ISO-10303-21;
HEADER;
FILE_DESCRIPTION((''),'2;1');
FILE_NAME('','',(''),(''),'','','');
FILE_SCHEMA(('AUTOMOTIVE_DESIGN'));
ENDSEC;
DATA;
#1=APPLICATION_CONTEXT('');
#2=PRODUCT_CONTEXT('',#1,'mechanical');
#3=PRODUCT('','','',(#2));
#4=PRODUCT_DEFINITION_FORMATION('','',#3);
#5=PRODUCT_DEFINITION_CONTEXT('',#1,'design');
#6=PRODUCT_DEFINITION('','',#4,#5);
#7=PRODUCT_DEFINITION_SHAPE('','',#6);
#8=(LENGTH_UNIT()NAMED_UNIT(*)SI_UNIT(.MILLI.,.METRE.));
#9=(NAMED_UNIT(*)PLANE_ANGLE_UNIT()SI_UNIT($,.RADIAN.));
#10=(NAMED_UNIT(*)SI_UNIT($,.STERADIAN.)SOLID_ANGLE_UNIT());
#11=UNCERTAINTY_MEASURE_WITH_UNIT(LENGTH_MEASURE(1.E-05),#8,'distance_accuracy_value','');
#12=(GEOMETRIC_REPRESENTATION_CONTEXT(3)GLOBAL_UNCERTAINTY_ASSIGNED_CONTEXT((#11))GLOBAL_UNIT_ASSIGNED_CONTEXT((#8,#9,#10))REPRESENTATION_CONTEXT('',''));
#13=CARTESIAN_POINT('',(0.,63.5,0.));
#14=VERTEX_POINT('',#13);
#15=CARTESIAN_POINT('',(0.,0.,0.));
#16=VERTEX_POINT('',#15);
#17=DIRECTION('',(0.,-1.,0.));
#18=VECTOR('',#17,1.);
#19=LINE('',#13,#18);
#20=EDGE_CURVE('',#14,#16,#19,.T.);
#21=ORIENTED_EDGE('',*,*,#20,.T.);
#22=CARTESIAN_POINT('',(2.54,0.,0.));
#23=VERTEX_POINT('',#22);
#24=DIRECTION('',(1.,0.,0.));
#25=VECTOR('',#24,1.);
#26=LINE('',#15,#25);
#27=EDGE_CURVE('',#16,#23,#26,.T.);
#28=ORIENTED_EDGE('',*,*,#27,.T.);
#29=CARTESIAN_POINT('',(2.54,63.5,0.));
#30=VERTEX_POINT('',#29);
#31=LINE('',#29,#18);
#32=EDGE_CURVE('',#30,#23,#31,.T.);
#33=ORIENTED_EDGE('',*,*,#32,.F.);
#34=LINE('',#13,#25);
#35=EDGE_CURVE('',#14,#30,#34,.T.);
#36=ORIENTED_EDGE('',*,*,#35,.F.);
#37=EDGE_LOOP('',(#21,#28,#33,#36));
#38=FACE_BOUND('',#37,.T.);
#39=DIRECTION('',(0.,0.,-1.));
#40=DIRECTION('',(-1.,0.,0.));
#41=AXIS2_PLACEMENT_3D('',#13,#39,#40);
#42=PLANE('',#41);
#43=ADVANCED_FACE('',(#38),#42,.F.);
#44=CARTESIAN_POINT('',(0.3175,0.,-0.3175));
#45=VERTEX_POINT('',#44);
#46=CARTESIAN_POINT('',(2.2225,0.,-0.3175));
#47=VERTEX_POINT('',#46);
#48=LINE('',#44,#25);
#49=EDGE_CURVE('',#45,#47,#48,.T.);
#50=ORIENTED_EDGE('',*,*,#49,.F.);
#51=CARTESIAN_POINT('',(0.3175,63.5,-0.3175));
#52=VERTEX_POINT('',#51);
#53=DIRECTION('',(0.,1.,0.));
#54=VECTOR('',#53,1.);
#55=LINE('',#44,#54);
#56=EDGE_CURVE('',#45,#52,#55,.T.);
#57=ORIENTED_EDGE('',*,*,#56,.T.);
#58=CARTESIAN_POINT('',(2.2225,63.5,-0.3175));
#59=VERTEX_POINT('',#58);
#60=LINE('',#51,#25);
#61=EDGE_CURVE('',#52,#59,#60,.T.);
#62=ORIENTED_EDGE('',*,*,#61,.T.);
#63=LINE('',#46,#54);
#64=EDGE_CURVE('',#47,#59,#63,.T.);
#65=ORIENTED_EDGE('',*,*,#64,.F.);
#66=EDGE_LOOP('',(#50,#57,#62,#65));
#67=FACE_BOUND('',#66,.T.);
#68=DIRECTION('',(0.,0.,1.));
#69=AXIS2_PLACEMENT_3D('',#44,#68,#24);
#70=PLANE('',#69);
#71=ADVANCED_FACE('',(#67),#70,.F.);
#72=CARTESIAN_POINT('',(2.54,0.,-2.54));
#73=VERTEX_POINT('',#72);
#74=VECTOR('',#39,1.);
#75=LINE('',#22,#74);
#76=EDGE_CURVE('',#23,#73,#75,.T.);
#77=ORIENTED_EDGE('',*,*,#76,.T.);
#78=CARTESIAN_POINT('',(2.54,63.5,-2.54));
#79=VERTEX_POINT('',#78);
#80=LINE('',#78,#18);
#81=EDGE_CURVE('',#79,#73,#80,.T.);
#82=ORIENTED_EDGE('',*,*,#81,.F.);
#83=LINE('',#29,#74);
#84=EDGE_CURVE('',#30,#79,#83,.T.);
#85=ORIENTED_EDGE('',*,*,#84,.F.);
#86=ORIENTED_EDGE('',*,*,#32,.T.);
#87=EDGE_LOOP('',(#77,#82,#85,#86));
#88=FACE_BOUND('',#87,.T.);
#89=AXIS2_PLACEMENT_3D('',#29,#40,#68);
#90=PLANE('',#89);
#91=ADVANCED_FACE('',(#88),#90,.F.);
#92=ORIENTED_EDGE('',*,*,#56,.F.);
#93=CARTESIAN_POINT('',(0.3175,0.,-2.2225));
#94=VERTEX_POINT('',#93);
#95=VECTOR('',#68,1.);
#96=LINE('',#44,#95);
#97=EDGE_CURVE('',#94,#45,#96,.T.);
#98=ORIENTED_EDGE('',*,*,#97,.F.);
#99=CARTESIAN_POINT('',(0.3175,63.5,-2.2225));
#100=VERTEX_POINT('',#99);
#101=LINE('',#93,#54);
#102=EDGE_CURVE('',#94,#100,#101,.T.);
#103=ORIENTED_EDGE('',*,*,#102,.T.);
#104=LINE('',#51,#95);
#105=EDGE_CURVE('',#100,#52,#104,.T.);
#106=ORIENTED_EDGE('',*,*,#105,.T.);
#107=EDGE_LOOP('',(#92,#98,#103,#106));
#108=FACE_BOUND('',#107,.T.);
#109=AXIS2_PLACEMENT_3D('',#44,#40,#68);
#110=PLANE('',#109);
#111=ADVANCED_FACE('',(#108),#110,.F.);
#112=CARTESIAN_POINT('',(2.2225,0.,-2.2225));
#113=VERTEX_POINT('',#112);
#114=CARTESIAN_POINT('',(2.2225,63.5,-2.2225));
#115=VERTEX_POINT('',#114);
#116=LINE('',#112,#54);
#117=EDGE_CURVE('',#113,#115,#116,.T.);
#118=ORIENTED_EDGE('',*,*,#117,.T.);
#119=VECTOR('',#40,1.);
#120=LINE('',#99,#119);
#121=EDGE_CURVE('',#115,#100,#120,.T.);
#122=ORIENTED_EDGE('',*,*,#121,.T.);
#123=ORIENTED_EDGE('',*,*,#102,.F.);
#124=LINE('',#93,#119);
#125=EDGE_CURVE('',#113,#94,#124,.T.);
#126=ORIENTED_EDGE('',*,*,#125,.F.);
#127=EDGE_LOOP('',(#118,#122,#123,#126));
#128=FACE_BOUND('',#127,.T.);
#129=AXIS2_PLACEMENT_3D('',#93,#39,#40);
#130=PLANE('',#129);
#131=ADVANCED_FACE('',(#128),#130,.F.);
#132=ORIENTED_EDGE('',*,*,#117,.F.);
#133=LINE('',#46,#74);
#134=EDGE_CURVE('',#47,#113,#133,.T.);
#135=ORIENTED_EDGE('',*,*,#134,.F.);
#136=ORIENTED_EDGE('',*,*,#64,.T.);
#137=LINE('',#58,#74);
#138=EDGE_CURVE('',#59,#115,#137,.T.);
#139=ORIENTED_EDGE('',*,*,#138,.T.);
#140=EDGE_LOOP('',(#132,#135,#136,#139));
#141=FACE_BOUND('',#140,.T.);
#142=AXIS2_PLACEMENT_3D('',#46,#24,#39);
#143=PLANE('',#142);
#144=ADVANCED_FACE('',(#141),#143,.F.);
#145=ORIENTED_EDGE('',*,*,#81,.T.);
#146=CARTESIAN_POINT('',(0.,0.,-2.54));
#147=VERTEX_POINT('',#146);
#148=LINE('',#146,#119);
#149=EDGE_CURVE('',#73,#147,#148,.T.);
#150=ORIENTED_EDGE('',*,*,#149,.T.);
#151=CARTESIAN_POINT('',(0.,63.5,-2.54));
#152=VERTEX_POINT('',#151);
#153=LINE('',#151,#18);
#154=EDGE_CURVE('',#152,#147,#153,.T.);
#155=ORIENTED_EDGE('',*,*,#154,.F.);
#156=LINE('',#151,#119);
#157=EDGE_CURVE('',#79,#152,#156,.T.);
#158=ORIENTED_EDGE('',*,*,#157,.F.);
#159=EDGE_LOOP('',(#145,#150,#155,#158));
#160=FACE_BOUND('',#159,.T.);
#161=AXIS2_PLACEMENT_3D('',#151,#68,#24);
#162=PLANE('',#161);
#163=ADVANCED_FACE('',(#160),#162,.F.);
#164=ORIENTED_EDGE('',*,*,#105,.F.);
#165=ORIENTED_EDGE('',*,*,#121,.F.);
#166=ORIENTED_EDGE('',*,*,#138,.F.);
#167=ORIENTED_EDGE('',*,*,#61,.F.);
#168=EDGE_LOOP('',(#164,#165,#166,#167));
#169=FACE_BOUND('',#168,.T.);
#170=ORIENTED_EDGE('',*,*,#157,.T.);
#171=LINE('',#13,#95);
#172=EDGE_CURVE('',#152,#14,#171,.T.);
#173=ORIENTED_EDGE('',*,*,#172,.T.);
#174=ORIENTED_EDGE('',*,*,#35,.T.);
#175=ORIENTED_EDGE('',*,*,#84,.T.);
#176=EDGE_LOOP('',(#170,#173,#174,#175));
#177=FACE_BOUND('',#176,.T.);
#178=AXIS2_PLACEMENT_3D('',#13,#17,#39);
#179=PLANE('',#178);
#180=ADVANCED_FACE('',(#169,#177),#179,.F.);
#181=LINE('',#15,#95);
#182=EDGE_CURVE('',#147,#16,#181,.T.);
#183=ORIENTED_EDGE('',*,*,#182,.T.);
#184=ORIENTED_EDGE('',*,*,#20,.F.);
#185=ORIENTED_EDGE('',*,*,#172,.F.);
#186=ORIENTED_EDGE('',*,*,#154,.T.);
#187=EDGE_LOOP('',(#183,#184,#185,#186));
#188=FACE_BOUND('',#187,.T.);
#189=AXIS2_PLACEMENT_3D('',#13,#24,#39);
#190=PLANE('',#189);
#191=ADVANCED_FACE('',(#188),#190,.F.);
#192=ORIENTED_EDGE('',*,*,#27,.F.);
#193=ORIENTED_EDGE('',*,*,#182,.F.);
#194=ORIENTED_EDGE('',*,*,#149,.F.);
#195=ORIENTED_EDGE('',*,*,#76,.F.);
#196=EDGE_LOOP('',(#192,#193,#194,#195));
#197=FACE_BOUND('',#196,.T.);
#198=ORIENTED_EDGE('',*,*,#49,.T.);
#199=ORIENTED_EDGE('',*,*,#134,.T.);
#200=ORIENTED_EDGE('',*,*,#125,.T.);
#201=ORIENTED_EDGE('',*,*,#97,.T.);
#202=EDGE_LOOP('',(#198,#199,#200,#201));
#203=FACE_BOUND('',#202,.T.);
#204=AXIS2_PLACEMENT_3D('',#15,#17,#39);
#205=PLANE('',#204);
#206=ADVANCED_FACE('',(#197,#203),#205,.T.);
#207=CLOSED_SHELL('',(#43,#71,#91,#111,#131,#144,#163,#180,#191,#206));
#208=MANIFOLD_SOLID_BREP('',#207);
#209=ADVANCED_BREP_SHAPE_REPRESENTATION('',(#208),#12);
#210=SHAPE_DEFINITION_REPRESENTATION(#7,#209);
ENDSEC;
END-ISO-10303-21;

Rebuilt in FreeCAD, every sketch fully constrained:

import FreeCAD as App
import Part
import Sketcher

V = App.Vector
Q = App.Units.Quantity


def add_polygon(sketch, points):
    """Adds a closed chain of lines whose ends are joined by coincident constraints."""
    first, n = sketch.GeometryCount, len(points)
    for a, b in zip(points, points[1:] + points[:1]):
        sketch.addGeometry(Part.LineSegment(App.Vector(*a, 0), App.Vector(*b, 0)), False)
    for i in range(n):
        sketch.addConstraint(Sketcher.Constraint("Coincident", first + i, 2, first + (i + 1) % n, 1))

doc = App.newDocument("Part")
params = doc.addObject("Spreadsheet::Sheet", "Params")
for row, (alias, value) in enumerate([
    ("sketch1_width", "0.1 in"),
    ("pad1_length", "2.5 in"),
    ("sketch2_width", "0.075 in"),
], start=1):
    params.set(f"A{row}", alias)
    params.set(f"B{row}", "=" + value)
    params.setAlias(f"B{row}", alias)

body = doc.addObject("PartDesign::Body", "Body")

sketch1 = body.newObject("Sketcher::SketchObject", "Sketch")
sketch1.AttachmentSupport = (doc.getObject("XZ_Plane"), [""])
sketch1.MapMode = "FlatFace"
add_polygon(sketch1, [(0, -2.5), (0, 0), (2.5, 0), (2.5, -2.5)])
sketch1.addConstraint([
    Sketcher.Constraint("Vertical", 0),
    Sketcher.Constraint("Horizontal", 1),
    Sketcher.Constraint("Vertical", 2),
    Sketcher.Constraint("Horizontal", 3),
    Sketcher.Constraint("Coincident", 0, 2, -1, 1),
    Sketcher.Constraint("Equal", 3, 0),
    Sketcher.Constraint("DistanceX", 1, 1, 1, 2, Q("0.1 in")),
])
sketch1.setExpression("Constraints[10]", "Params.sketch1_width")
pad1 = body.newObject("PartDesign::Pad", "Pad")
pad1.Profile = sketch1
pad1.setExpression("Length", "Params.pad1_length")
pad1.Reversed = True

sketch2 = body.newObject("Sketcher::SketchObject", "Sketch001")
sketch2.AttachmentSupport = (doc.getObject("XZ_Plane"), [""])
sketch2.MapMode = "FlatFace"
sketch2.AttachmentOffset = App.Placement(V(0, 0, -2.5 * 25.4), App.Rotation())
add_polygon(sketch2, [(0.3, -2.2), (0.3, -0.3), (2.2, -0.3), (2.2, -2.2)])
sketch2.addConstraint([
    Sketcher.Constraint("Vertical", 0),
    Sketcher.Constraint("Horizontal", 1),
    Sketcher.Constraint("Vertical", 2),
    Sketcher.Constraint("Horizontal", 3),
    Sketcher.Constraint("Equal", 3, 0),
    Sketcher.Constraint("DistanceX", 1, 1, 1, 2, Q("0.075 in")),
    Sketcher.Constraint("DistanceX", -1, 1, 0, 2, Q("0.0125 in")),
    Sketcher.Constraint("DistanceY", 0, 2, -1, 1, Q("0.0125 in")),
])
sketch2.setExpression("Constraints[9]", "Params.sketch2_width")
pocket1 = body.newObject("PartDesign::Pocket", "Pocket")
pocket1.Profile = sketch2
pocket1.Type = "ThroughAll"
pocket1.Reversed = True

doc.recompute()
